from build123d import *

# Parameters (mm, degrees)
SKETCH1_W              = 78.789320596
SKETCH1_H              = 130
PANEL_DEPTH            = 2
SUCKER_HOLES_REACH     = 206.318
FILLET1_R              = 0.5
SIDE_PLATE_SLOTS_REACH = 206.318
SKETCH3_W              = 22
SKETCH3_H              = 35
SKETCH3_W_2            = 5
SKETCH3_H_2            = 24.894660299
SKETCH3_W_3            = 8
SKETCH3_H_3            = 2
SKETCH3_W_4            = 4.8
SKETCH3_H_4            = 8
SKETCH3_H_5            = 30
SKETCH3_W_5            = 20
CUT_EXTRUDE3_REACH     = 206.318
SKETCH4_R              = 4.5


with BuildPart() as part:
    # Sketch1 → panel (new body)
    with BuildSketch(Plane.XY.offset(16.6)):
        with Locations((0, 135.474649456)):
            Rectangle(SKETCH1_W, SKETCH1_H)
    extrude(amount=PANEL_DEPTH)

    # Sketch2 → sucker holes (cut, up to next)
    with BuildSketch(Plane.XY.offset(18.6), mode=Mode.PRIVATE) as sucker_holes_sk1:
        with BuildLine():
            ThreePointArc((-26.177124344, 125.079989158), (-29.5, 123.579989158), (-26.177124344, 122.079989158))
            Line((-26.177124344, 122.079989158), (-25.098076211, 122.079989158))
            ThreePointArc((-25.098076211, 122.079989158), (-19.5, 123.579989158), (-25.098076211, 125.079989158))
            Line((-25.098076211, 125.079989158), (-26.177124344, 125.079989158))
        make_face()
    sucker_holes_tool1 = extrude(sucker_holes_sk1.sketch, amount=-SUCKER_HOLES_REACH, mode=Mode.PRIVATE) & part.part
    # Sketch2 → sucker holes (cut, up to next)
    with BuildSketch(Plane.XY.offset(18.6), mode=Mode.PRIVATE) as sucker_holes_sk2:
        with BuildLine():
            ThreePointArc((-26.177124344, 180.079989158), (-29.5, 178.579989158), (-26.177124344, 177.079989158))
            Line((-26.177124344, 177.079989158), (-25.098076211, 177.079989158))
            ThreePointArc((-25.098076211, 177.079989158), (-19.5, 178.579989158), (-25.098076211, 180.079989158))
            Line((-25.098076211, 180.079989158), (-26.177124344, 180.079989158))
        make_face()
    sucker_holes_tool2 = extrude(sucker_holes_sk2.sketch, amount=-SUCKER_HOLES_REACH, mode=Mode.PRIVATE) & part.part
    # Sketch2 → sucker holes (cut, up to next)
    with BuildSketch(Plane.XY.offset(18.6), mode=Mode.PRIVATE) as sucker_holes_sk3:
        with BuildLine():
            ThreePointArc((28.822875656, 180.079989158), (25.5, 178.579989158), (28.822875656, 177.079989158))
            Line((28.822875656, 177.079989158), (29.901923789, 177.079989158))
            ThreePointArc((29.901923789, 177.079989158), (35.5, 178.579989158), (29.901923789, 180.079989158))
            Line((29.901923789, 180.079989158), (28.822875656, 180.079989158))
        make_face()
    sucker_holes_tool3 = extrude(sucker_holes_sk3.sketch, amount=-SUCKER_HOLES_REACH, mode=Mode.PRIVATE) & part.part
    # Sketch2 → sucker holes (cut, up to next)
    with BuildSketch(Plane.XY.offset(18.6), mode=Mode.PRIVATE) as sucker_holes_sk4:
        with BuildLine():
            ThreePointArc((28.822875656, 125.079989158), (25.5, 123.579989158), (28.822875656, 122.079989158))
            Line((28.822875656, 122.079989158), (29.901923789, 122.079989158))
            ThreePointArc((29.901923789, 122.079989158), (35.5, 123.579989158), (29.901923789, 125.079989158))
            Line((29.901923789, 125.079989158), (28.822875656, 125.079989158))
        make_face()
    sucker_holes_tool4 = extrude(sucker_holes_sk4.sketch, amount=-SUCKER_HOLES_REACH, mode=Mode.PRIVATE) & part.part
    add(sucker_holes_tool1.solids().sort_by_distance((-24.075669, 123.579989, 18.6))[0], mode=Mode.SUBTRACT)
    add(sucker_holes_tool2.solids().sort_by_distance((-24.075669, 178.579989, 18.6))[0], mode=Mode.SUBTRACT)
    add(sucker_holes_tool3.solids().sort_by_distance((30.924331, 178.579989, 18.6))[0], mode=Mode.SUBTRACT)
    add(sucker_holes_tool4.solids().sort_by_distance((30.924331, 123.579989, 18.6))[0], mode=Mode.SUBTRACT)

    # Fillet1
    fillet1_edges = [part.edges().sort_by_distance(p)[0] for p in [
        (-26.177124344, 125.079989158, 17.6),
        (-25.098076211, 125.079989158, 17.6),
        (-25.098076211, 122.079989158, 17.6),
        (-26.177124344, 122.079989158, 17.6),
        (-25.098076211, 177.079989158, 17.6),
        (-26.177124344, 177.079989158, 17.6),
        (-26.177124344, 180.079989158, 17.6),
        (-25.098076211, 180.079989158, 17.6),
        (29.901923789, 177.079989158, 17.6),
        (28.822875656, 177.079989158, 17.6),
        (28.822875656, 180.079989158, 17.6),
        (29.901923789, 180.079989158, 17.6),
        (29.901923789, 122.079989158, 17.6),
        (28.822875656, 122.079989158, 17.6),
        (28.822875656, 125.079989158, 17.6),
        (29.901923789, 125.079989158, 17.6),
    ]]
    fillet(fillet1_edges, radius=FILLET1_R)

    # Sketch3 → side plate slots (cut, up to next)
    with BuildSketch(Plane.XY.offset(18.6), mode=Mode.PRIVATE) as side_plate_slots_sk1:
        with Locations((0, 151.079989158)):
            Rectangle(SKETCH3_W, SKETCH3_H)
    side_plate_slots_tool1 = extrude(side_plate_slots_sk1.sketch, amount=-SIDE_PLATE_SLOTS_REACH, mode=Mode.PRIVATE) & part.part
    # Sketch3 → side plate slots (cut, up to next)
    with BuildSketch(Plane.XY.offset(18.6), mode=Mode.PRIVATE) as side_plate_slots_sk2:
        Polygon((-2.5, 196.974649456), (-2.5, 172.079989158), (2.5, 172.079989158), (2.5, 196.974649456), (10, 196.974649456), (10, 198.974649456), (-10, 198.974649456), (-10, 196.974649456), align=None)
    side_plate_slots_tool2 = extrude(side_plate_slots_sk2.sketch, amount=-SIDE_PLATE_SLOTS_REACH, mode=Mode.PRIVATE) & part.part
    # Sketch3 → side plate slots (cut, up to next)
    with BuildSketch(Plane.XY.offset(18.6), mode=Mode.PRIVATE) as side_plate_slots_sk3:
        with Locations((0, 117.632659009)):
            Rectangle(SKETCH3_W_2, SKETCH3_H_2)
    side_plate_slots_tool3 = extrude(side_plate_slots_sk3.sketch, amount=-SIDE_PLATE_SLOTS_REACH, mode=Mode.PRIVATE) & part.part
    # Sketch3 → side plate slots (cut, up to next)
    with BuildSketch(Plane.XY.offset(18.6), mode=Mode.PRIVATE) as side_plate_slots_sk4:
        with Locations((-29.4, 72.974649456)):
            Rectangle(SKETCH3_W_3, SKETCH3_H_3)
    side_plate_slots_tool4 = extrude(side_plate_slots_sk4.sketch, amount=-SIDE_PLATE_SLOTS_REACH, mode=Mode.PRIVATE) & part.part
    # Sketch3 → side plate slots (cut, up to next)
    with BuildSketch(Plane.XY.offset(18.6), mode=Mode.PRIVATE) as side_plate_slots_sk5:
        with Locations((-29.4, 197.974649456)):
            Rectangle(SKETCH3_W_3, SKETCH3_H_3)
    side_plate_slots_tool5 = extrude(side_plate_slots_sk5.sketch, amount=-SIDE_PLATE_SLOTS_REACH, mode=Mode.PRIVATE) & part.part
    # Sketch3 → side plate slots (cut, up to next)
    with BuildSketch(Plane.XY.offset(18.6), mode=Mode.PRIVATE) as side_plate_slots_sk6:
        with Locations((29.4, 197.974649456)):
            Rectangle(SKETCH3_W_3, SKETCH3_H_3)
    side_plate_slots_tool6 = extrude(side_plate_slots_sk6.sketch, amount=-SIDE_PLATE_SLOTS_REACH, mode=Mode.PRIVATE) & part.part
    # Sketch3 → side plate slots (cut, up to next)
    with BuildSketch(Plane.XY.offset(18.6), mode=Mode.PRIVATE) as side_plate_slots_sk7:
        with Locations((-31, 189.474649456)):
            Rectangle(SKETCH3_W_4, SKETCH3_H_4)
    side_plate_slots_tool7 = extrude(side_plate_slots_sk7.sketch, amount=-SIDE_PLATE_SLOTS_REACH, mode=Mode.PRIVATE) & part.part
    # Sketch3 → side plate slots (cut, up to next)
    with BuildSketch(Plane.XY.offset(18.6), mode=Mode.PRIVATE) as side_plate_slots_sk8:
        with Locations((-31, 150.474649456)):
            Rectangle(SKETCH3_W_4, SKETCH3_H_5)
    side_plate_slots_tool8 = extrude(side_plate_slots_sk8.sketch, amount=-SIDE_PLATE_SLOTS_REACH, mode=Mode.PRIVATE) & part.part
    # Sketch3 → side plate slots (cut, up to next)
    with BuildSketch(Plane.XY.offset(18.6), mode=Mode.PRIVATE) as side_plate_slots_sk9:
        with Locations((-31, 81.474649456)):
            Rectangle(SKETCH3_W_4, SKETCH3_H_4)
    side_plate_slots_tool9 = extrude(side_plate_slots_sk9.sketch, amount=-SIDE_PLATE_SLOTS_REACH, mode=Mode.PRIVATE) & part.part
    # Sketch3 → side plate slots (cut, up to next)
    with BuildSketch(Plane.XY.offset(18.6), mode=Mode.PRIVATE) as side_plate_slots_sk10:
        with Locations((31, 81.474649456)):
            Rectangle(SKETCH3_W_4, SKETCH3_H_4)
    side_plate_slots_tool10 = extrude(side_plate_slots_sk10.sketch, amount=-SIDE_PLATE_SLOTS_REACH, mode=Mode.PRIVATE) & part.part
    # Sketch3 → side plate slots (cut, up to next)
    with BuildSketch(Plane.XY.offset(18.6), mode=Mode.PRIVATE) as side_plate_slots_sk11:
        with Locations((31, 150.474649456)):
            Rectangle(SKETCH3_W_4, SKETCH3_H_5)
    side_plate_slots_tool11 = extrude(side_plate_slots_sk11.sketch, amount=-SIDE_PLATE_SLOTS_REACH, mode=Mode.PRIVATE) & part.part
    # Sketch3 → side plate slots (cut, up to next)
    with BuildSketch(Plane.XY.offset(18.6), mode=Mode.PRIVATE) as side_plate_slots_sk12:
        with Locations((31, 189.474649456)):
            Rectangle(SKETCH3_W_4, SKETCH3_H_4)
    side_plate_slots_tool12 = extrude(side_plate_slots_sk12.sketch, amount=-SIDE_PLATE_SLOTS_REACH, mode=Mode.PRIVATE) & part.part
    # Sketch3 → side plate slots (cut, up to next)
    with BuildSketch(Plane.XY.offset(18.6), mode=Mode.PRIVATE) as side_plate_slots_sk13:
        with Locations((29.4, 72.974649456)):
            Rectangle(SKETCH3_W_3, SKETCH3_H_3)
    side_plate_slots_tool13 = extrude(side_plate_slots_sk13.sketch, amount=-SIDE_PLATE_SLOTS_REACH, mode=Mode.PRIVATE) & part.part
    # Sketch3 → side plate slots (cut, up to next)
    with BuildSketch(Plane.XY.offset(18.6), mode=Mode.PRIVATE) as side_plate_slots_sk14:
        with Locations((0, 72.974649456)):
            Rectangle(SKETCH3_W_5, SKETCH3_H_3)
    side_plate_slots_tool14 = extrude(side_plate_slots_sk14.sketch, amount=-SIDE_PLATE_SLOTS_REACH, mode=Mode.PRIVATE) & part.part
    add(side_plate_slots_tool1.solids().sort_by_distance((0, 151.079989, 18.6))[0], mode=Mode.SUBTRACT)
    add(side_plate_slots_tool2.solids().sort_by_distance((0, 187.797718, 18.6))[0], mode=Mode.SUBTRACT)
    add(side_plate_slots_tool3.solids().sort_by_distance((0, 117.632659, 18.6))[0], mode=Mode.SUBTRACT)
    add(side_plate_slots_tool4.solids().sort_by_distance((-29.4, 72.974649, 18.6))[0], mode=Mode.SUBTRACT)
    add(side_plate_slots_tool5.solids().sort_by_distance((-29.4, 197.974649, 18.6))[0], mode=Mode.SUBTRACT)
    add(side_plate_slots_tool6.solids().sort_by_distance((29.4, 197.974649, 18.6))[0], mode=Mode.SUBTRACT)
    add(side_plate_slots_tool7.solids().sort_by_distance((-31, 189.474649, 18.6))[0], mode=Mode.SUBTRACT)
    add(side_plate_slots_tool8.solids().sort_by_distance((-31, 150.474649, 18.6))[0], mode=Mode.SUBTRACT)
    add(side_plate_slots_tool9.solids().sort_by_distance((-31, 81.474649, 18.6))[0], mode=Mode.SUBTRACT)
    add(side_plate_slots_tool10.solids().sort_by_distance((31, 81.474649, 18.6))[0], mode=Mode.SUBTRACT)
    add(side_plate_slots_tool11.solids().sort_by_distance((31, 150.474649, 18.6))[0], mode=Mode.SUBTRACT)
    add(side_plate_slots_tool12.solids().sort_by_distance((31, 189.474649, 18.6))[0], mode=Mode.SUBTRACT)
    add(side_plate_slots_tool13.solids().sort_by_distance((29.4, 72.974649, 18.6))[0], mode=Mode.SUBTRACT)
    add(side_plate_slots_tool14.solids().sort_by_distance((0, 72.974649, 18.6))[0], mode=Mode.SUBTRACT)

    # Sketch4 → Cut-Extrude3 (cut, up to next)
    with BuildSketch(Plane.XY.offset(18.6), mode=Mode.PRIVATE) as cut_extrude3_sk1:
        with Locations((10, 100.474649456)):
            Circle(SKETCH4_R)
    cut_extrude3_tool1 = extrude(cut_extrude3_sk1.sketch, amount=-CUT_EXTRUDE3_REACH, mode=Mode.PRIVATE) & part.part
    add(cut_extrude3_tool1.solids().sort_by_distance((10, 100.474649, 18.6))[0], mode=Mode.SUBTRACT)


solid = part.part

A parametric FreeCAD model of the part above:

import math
import FreeCAD as App
import Part
import Sketcher


def edges_at(feature, points):
    """Names of the edges that pass closest to the given points."""
    edges = feature.Shape.Edges
    near = lambda p: min(range(len(edges)), key=lambda i: edges[i].distToShape(Part.Vertex(*p))[0])
    return sorted({f"Edge{near(p) + 1}" for p in points})

doc = App.newDocument("Part")
body = doc.addObject("PartDesign::Body", "Body")

# Sketch on XY plane
sketch1 = body.newObject("Sketcher::SketchObject", "Sketch")
sketch1.AttachmentSupport = (doc.getObject("XY_Plane"), [""])
sketch1.MapMode = "FlatFace"
sketch1.AttachmentOffset = App.Placement(App.Vector(0, 0, 16.6), App.Rotation())
sketch1.addGeometry(Part.LineSegment(App.Vector(-39, 200, 0), App.Vector(-39, 70, 0)), False)
sketch1.addGeometry(Part.LineSegment(App.Vector(-39, 70, 0), App.Vector(39, 70, 0)), False)
sketch1.addGeometry(Part.LineSegment(App.Vector(39, 70, 0), App.Vector(39, 200, 0)), False)
sketch1.addGeometry(Part.LineSegment(App.Vector(39, 200, 0), App.Vector(-39, 200, 0)), False)
sketch1.addConstraint(Sketcher.Constraint("Coincident", 0, 2, 1, 1))
sketch1.addConstraint(Sketcher.Constraint("Coincident", 1, 2, 2, 1))
sketch1.addConstraint(Sketcher.Constraint("Coincident", 2, 2, 3, 1))
sketch1.addConstraint(Sketcher.Constraint("Coincident", 3, 2, 0, 1))
sketch1.addConstraint(Sketcher.Constraint("Vertical", 0))
sketch1.addConstraint(Sketcher.Constraint("Horizontal", 1))
sketch1.addConstraint(Sketcher.Constraint("Vertical", 2))
sketch1.addConstraint(Sketcher.Constraint("Horizontal", 3))
sketch1.addConstraint(Sketcher.Constraint("DistanceY", 0, 2, 0, 1, 130.0))
sketch1.addConstraint(Sketcher.Constraint("DistanceX", 1, 1, 1, 2, 78.789321))
sketch1.addConstraint(Sketcher.Constraint("DistanceX", 0, 2, -1, 1, 39.39466))
sketch1.addConstraint(Sketcher.Constraint("DistanceY", -1, 1, 0, 2, 70.474649))
pad1 = body.newObject("PartDesign::Pad", "Pad")
pad1.Profile = sketch1
pad1.Length = 2

# Sketch on XY plane
sketch2 = body.newObject("Sketcher::SketchObject", "Sketch001")
sketch2.AttachmentSupport = (doc.getObject("XY_Plane"), [""])
sketch2.MapMode = "FlatFace"
sketch2.AttachmentOffset = App.Placement(App.Vector(0, 0, 18.6), App.Rotation())
sketch2.addGeometry(Part.ArcOfCircle(Part.Circle(App.Vector(-27.5, 123.6, 0), App.Vector(0, 0, 1), 2), math.radians(49), math.radians(311)), False)
sketch2.addGeometry(Part.LineSegment(App.Vector(-26.2, 122.1, 0), App.Vector(-25.1, 122.1, 0)), False)
sketch2.addGeometry(Part.ArcOfCircle(Part.Circle(App.Vector(-22.5, 123.6, 0), App.Vector(0, 0, 1), 3), math.radians(-150), math.radians(150)), False)
sketch2.addGeometry(Part.LineSegment(App.Vector(-25.1, 125.1, 0), App.Vector(-26.2, 125.1, 0)), False)
sketch2.addConstraint(Sketcher.Constraint("Coincident", 0, 2, 1, 1))
sketch2.addConstraint(Sketcher.Constraint("Coincident", 1, 2, 2, 1))
sketch2.addConstraint(Sketcher.Constraint("Coincident", 2, 2, 3, 1))
sketch2.addConstraint(Sketcher.Constraint("Coincident", 3, 2, 0, 1))
sketch2.addConstraint(Sketcher.Constraint("Horizontal", 1))
sketch2.addConstraint(Sketcher.Constraint("Horizontal", 3))
sketch2.addConstraint(Sketcher.Constraint("Horizontal", 0, 3, 2, 3))
sketch2.addConstraint(Sketcher.Constraint("Vertical", 1, 2, 2, 2))
sketch2.addConstraint(Sketcher.Constraint("Radius", 0, 2.0))
sketch2.addConstraint(Sketcher.Constraint("Radius", 2, 3.0))
sketch2.addConstraint(Sketcher.Constraint("DistanceX", 0, 3, 2, 3, 5.0))
sketch2.addConstraint(Sketcher.Constraint("DistanceY", 1, 2, 2, 2, 3.0))
sketch2.addConstraint(Sketcher.Constraint("DistanceX", 0, 3, -1, 1, 27.5))
sketch2.addConstraint(Sketcher.Constraint("DistanceY", -1, 1, 0, 3, 123.579989))
pocket1 = body.newObject("PartDesign::Pocket", "Pocket")
pocket1.Profile = sketch2
pocket1.Type = "UpToFirst"

# Sketch on XY plane
sketch3 = body.newObject("Sketcher::SketchObject", "Sketch002")
sketch3.AttachmentSupport = (doc.getObject("XY_Plane"), [""])
sketch3.MapMode = "FlatFace"
sketch3.AttachmentOffset = App.Placement(App.Vector(0, 0, 18.6), App.Rotation())
sketch3.addGeometry(Part.ArcOfCircle(Part.Circle(App.Vector(-27.5, 178.6, 0), App.Vector(0, 0, 1), 2), math.radians(49), math.radians(311)), False)
sketch3.addGeometry(Part.LineSegment(App.Vector(-26.2, 177.1, 0), App.Vector(-25.1, 177.1, 0)), False)
sketch3.addGeometry(Part.ArcOfCircle(Part.Circle(App.Vector(-22.5, 178.6, 0), App.Vector(0, 0, 1), 3), math.radians(-150), math.radians(150)), False)
sketch3.addGeometry(Part.LineSegment(App.Vector(-25.1, 180.1, 0), App.Vector(-26.2, 180.1, 0)), False)
sketch3.addConstraint(Sketcher.Constraint("Coincident", 0, 2, 1, 1))
sketch3.addConstraint(Sketcher.Constraint("Coincident", 1, 2, 2, 1))
sketch3.addConstraint(Sketcher.Constraint("Coincident", 2, 2, 3, 1))
sketch3.addConstraint(Sketcher.Constraint("Coincident", 3, 2, 0, 1))
sketch3.addConstraint(Sketcher.Constraint("Horizontal", 1))
sketch3.addConstraint(Sketcher.Constraint("Horizontal", 3))
sketch3.addConstraint(Sketcher.Constraint("Horizontal", 0, 3, 2, 3))
sketch3.addConstraint(Sketcher.Constraint("Vertical", 1, 2, 2, 2))
sketch3.addConstraint(Sketcher.Constraint("Radius", 0, 2.0))
sketch3.addConstraint(Sketcher.Constraint("Radius", 2, 3.0))
sketch3.addConstraint(Sketcher.Constraint("DistanceX", 0, 3, 2, 3, 5.0))
sketch3.addConstraint(Sketcher.Constraint("DistanceY", 1, 2, 2, 2, 3.0))
sketch3.addConstraint(Sketcher.Constraint("DistanceX", 0, 3, -1, 1, 27.5))
sketch3.addConstraint(Sketcher.Constraint("DistanceY", -1, 1, 0, 3, 178.579989))
pocket2 = body.newObject("PartDesign::Pocket", "Pocket001")
pocket2.Profile = sketch3
pocket2.Type = "UpToFirst"

# Sketch on XY plane
sketch4 = body.newObject("Sketcher::SketchObject", "Sketch003")
sketch4.AttachmentSupport = (doc.getObject("XY_Plane"), [""])
sketch4.MapMode = "FlatFace"
sketch4.AttachmentOffset = App.Placement(App.Vector(0, 0, 18.6), App.Rotation())
sketch4.addGeometry(Part.ArcOfCircle(Part.Circle(App.Vector(27.5, 178.6, 0), App.Vector(0, 0, 1), 2), math.radians(49), math.radians(311)), False)
sketch4.addGeometry(Part.LineSegment(App.Vector(28.8, 177.1, 0), App.Vector(29.9, 177.1, 0)), False)
sketch4.addGeometry(Part.ArcOfCircle(Part.Circle(App.Vector(32.5, 178.6, 0), App.Vector(0, 0, 1), 3), math.radians(-150), math.radians(150)), False)
sketch4.addGeometry(Part.LineSegment(App.Vector(29.9, 180.1, 0), App.Vector(28.8, 180.1, 0)), False)
sketch4.addConstraint(Sketcher.Constraint("Coincident", 0, 2, 1, 1))
sketch4.addConstraint(Sketcher.Constraint("Coincident", 1, 2, 2, 1))
sketch4.addConstraint(Sketcher.Constraint("Coincident", 2, 2, 3, 1))
sketch4.addConstraint(Sketcher.Constraint("Coincident", 3, 2, 0, 1))
sketch4.addConstraint(Sketcher.Constraint("Horizontal", 1))
sketch4.addConstraint(Sketcher.Constraint("Horizontal", 3))
sketch4.addConstraint(Sketcher.Constraint("Horizontal", 0, 3, 2, 3))
sketch4.addConstraint(Sketcher.Constraint("Vertical", 1, 2, 2, 2))
sketch4.addConstraint(Sketcher.Constraint("Radius", 0, 2.0))
sketch4.addConstraint(Sketcher.Constraint("Radius", 2, 3.0))
sketch4.addConstraint(Sketcher.Constraint("DistanceX", 0, 3, 2, 3, 5.0))
sketch4.addConstraint(Sketcher.Constraint("DistanceY", 1, 2, 2, 2, 3.0))
sketch4.addConstraint(Sketcher.Constraint("DistanceX", -1, 1, 0, 3, 27.5))
sketch4.addConstraint(Sketcher.Constraint("DistanceY", -1, 1, 0, 3, 178.579989))
pocket3 = body.newObject("PartDesign::Pocket", "Pocket002")
pocket3.Profile = sketch4
pocket3.Type = "UpToFirst"

# Sketch on XY plane
sketch5 = body.newObject("Sketcher::SketchObject", "Sketch004")
sketch5.AttachmentSupport = (doc.getObject("XY_Plane"), [""])
sketch5.MapMode = "FlatFace"
sketch5.AttachmentOffset = App.Placement(App.Vector(0, 0, 18.6), App.Rotation())
sketch5.addGeometry(Part.ArcOfCircle(Part.Circle(App.Vector(27.5, 123.6, 0), App.Vector(0, 0, 1), 2), math.radians(49), math.radians(311)), False)
sketch5.addGeometry(Part.LineSegment(App.Vector(28.8, 122.1, 0), App.Vector(29.9, 122.1, 0)), False)
sketch5.addGeometry(Part.ArcOfCircle(Part.Circle(App.Vector(32.5, 123.6, 0), App.Vector(0, 0, 1), 3), math.radians(-150), math.radians(150)), False)
sketch5.addGeometry(Part.LineSegment(App.Vector(29.9, 125.1, 0), App.Vector(28.8, 125.1, 0)), False)
sketch5.addConstraint(Sketcher.Constraint("Coincident", 0, 2, 1, 1))
sketch5.addConstraint(Sketcher.Constraint("Coincident", 1, 2, 2, 1))
sketch5.addConstraint(Sketcher.Constraint("Coincident", 2, 2, 3, 1))
sketch5.addConstraint(Sketcher.Constraint("Coincident", 3, 2, 0, 1))
sketch5.addConstraint(Sketcher.Constraint("Horizontal", 1))
sketch5.addConstraint(Sketcher.Constraint("Horizontal", 3))
sketch5.addConstraint(Sketcher.Constraint("Horizontal", 0, 3, 2, 3))
sketch5.addConstraint(Sketcher.Constraint("Vertical", 1, 2, 2, 2))
sketch5.addConstraint(Sketcher.Constraint("Radius", 0, 2.0))
sketch5.addConstraint(Sketcher.Constraint("Radius", 2, 3.0))
sketch5.addConstraint(Sketcher.Constraint("DistanceX", 0, 3, 2, 3, 5.0))
sketch5.addConstraint(Sketcher.Constraint("DistanceY", 1, 2, 2, 2, 3.0))
sketch5.addConstraint(Sketcher.Constraint("DistanceX", -1, 1, 0, 3, 27.5))
sketch5.addConstraint(Sketcher.Constraint("DistanceY", -1, 1, 0, 3, 123.579989))
pocket4 = body.newObject("PartDesign::Pocket", "Pocket003")
pocket4.Profile = sketch5
pocket4.Type = "UpToFirst"
doc.recompute()

fillet = body.newObject("PartDesign::Fillet", "Fillet")
fillet.Base = (pocket4, edges_at(pocket4, [
    (-26.177, 125.08, 17.6),
    (-25.098, 125.08, 17.6),
    (-25.098, 122.08, 17.6),
    (-26.177, 122.08, 17.6),
    (-25.098, 177.08, 17.6),
    (-26.177, 177.08, 17.6),
    (-26.177, 180.08, 17.6),
    (-25.098, 180.08, 17.6),
    (29.902, 177.08, 17.6),
    (28.823, 177.08, 17.6),
    (28.823, 180.08, 17.6),
    (29.902, 180.08, 17.6),
    (29.902, 122.08, 17.6),
    (28.823, 122.08, 17.6),
    (28.823, 125.08, 17.6),
    (29.902, 125.08, 17.6),
]))
fillet.Radius = 0.5

# Sketch on XY plane
sketch6 = body.newObject("Sketcher::SketchObject", "Sketch005")
sketch6.AttachmentSupport = (doc.getObject("XY_Plane"), [""])
sketch6.MapMode = "FlatFace"
sketch6.AttachmentOffset = App.Placement(App.Vector(0, 0, 18.6), App.Rotation())
sketch6.addGeometry(Part.LineSegment(App.Vector(-11, 169, 0), App.Vector(-11, 134, 0)), False)
sketch6.addGeometry(Part.LineSegment(App.Vector(-11, 134, 0), App.Vector(11, 134, 0)), False)
sketch6.addGeometry(Part.LineSegment(App.Vector(11, 134, 0), App.Vector(11, 169, 0)), False)
sketch6.addGeometry(Part.LineSegment(App.Vector(11, 169, 0), App.Vector(-11, 169, 0)), False)
sketch6.addConstraint(Sketcher.Constraint("Coincident", 0, 2, 1, 1))
sketch6.addConstraint(Sketcher.Constraint("Coincident", 1, 2, 2, 1))
sketch6.addConstraint(Sketcher.Constraint("Coincident", 2, 2, 3, 1))
sketch6.addConstraint(Sketcher.Constraint("Coincident", 3, 2, 0, 1))
sketch6.addConstraint(Sketcher.Constraint("Vertical", 0))
sketch6.addConstraint(Sketcher.Constraint("Horizontal", 1))
sketch6.addConstraint(Sketcher.Constraint("Vertical", 2))
sketch6.addConstraint(Sketcher.Constraint("Horizontal", 3))
sketch6.addConstraint(Sketcher.Constraint("DistanceX", 1, 1, 1, 2, 22.0))
sketch6.addConstraint(Sketcher.Constraint("DistanceY", 0, 2, 0, 1, 35.0))
sketch6.addConstraint(Sketcher.Constraint("DistanceX", 0, 2, -1, 1, 11.0))
sketch6.addConstraint(Sketcher.Constraint("DistanceY", -1, 1, 0, 2, 133.579989))
pocket5 = body.newObject("PartDesign::Pocket", "Pocket004")
pocket5.Profile = sketch6
pocket5.Type = "UpToFirst"

# Sketch on XY plane
sketch7 = body.newObject("Sketcher::SketchObject", "Sketch006")
sketch7.AttachmentSupport = (doc.getObject("XY_Plane"), [""])
sketch7.MapMode = "FlatFace"
sketch7.AttachmentOffset = App.Placement(App.Vector(0, 0, 18.6), App.Rotation())
sketch7.addGeometry(Part.LineSegment(App.Vector(-2.5, 197, 0), App.Vector(-2.5, 172.1, 0)), False)
sketch7.addGeometry(Part.LineSegment(App.Vector(-2.5, 172.1, 0), App.Vector(2.5, 172.1, 0)), False)
sketch7.addGeometry(Part.LineSegment(App.Vector(2.5, 172.1, 0), App.Vector(2.5, 197, 0)), False)
sketch7.addGeometry(Part.LineSegment(App.Vector(2.5, 197, 0), App.Vector(10, 197, 0)), False)
sketch7.addGeometry(Part.LineSegment(App.Vector(10, 197, 0), App.Vector(10, 199, 0)), False)
sketch7.addGeometry(Part.LineSegment(App.Vector(10, 199, 0), App.Vector(-10, 199, 0)), False)
sketch7.addGeometry(Part.LineSegment(App.Vector(-10, 199, 0), App.Vector(-10, 197, 0)), False)
sketch7.addGeometry(Part.LineSegment(App.Vector(-10, 197, 0), App.Vector(-2.5, 197, 0)), False)
sketch7.addConstraint(Sketcher.Constraint("Coincident", 0, 2, 1, 1))
sketch7.addConstraint(Sketcher.Constraint("Coincident", 1, 2, 2, 1))
sketch7.addConstraint(Sketcher.Constraint("Coincident", 2, 2, 3, 1))
sketch7.addConstraint(Sketcher.Constraint("Coincident", 3, 2, 4, 1))
sketch7.addConstraint(Sketcher.Constraint("Coincident", 4, 2, 5, 1))
sketch7.addConstraint(Sketcher.Constraint("Coincident", 5, 2, 6, 1))
sketch7.addConstraint(Sketcher.Constraint("Coincident", 6, 2, 7, 1))
sketch7.addConstraint(Sketcher.Constraint("Coincident", 7, 2, 0, 1))
sketch7.addConstraint(Sketcher.Constraint("Vertical", 0))
sketch7.addConstraint(Sketcher.Constraint("Horizontal", 1))
sketch7.addConstraint(Sketcher.Constraint("Vertical", 2))
sketch7.addConstraint(Sketcher.Constraint("Horizontal", 3))
sketch7.addConstraint(Sketcher.Constraint("Vertical", 4))
sketch7.addConstraint(Sketcher.Constraint("Horizontal", 5))
sketch7.addConstraint(Sketcher.Constraint("Vertical", 6))
sketch7.addConstraint(Sketcher.Constraint("Horizontal", 7))
sketch7.addConstraint(Sketcher.Constraint("Symmetric", 3, 2, 6, 2, -2))
sketch7.addConstraint(Sketcher.Constraint("Equal", 3, 7))
sketch7.addConstraint(Sketcher.Constraint("DistanceX", 1, 1, 1, 2, 5.0))
sketch7.addConstraint(Sketcher.Constraint("DistanceX", 5, 2, 5, 1, 20.0))
sketch7.addConstraint(Sketcher.Constraint("DistanceY", 4, 1, 4, 2, 2.0))
sketch7.addConstraint(Sketcher.Constraint("DistanceY", 0, 2, 0, 1, 24.89466))
sketch7.addConstraint(Sketcher.Constraint("DistanceY", -1, 1, 0, 2, 172.079989))
pocket6 = body.newObject("PartDesign::Pocket", "Pocket005")
pocket6.Profile = sketch7
pocket6.Type = "UpToFirst"

# Sketch on XY plane
sketch8 = body.newObject("Sketcher::SketchObject", "Sketch007")
sketch8.AttachmentSupport = (doc.getObject("XY_Plane"), [""])
sketch8.MapMode = "FlatFace"
sketch8.AttachmentOffset = App.Placement(App.Vector(0, 0, 18.6), App.Rotation())
sketch8.addGeometry(Part.LineSegment(App.Vector(-2, 130, 0), App.Vector(-2, 105, 0)), False)
sketch8.addGeometry(Part.LineSegment(App.Vector(-2, 105, 0), App.Vector(2, 105, 0)), False)
sketch8.addGeometry(Part.LineSegment(App.Vector(2, 105, 0), App.Vector(2, 130, 0)), False)
sketch8.addGeometry(Part.LineSegment(App.Vector(2, 130, 0), App.Vector(-2, 130, 0)), False)
sketch8.addConstraint(Sketcher.Constraint("Coincident", 0, 2, 1, 1))
sketch8.addConstraint(Sketcher.Constraint("Coincident", 1, 2, 2, 1))
sketch8.addConstraint(Sketcher.Constraint("Coincident", 2, 2, 3, 1))
sketch8.addConstraint(Sketcher.Constraint("Coincident", 3, 2, 0, 1))
sketch8.addConstraint(Sketcher.Constraint("Vertical", 0))
sketch8.addConstraint(Sketcher.Constraint("Horizontal", 1))
sketch8.addConstraint(Sketcher.Constraint("Vertical", 2))
sketch8.addConstraint(Sketcher.Constraint("Horizontal", 3))
sketch8.addConstraint(Sketcher.Constraint("DistanceX", 1, 1, 1, 2, 5.0))
sketch8.addConstraint(Sketcher.Constraint("DistanceX", 0, 2, -1, 1, 2.5))
sketch8.addConstraint(Sketcher.Constraint("DistanceY", 0, 2, 0, 1, 24.89466))
sketch8.addConstraint(Sketcher.Constraint("DistanceY", -1, 1, 0, 2, 105.185329))
pocket7 = body.newObject("PartDesign::Pocket", "Pocket006")
pocket7.Profile = sketch8
pocket7.Type = "UpToFirst"

# Sketch on XY plane
sketch9 = body.newObject("Sketcher::SketchObject", "Sketch008")
sketch9.AttachmentSupport = (doc.getObject("XY_Plane"), [""])
sketch9.MapMode = "FlatFace"
sketch9.AttachmentOffset = App.Placement(App.Vector(0, 0, 18.6), App.Rotation())
sketch9.addGeometry(Part.LineSegment(App.Vector(-33.4, 74, 0), App.Vector(-33.4, 72, 0)), False)
sketch9.addGeometry(Part.LineSegment(App.Vector(-33.4, 72, 0), App.Vector(-25.4, 72, 0)), False)
sketch9.addGeometry(Part.LineSegment(App.Vector(-25.4, 72, 0), App.Vector(-25.4, 74, 0)), False)
sketch9.addGeometry(Part.LineSegment(App.Vector(-25.4, 74, 0), App.Vector(-33.4, 74, 0)), False)
sketch9.addConstraint(Sketcher.Constraint("Coincident", 0, 2, 1, 1))
sketch9.addConstraint(Sketcher.Constraint("Coincident", 1, 2, 2, 1))
sketch9.addConstraint(Sketcher.Constraint("Coincident", 2, 2, 3, 1))
sketch9.addConstraint(Sketcher.Constraint("Coincident", 3, 2, 0, 1))
sketch9.addConstraint(Sketcher.Constraint("Vertical", 0))
sketch9.addConstraint(Sketcher.Constraint("Horizontal", 1))
sketch9.addConstraint(Sketcher.Constraint("Vertical", 2))
sketch9.addConstraint(Sketcher.Constraint("Horizontal", 3))
sketch9.addConstraint(Sketcher.Constraint("DistanceX", 1, 1, 1, 2, 8.0))
sketch9.addConstraint(Sketcher.Constraint("DistanceY", 0, 2, 0, 1, 2.0))
sketch9.addConstraint(Sketcher.Constraint("DistanceX", 0, 2, -1, 1, 33.4))
sketch9.addConstraint(Sketcher.Constraint("DistanceY", -1, 1, 0, 2, 71.974649))
pocket8 = body.newObject("PartDesign::Pocket", "Pocket007")
pocket8.Profile = sketch9
pocket8.Type = "UpToFirst"

# Sketch on XY plane
sketch10 = body.newObject("Sketcher::SketchObject", "Sketch009")
sketch10.AttachmentSupport = (doc.getObject("XY_Plane"), [""])
sketch10.MapMode = "FlatFace"
sketch10.AttachmentOffset = App.Placement(App.Vector(0, 0, 18.6), App.Rotation())
sketch10.addGeometry(Part.LineSegment(App.Vector(-33.4, 199, 0), App.Vector(-33.4, 197, 0)), False)
sketch10.addGeometry(Part.LineSegment(App.Vector(-33.4, 197, 0), App.Vector(-25.4, 197, 0)), False)
sketch10.addGeometry(Part.LineSegment(App.Vector(-25.4, 197, 0), App.Vector(-25.4, 199, 0)), False)
sketch10.addGeometry(Part.LineSegment(App.Vector(-25.4, 199, 0), App.Vector(-33.4, 199, 0)), False)
sketch10.addConstraint(Sketcher.Constraint("Coincident", 0, 2, 1, 1))
sketch10.addConstraint(Sketcher.Constraint("Coincident", 1, 2, 2, 1))
sketch10.addConstraint(Sketcher.Constraint("Coincident", 2, 2, 3, 1))
sketch10.addConstraint(Sketcher.Constraint("Coincident", 3, 2, 0, 1))
sketch10.addConstraint(Sketcher.Constraint("Vertical", 0))
sketch10.addConstraint(Sketcher.Constraint("Horizontal", 1))
sketch10.addConstraint(Sketcher.Constraint("Vertical", 2))
sketch10.addConstraint(Sketcher.Constraint("Horizontal", 3))
sketch10.addConstraint(Sketcher.Constraint("DistanceX", 1, 1, 1, 2, 8.0))
sketch10.addConstraint(Sketcher.Constraint("DistanceY", 0, 2, 0, 1, 2.0))
sketch10.addConstraint(Sketcher.Constraint("DistanceX", 0, 2, -1, 1, 33.4))
sketch10.addConstraint(Sketcher.Constraint("DistanceY", -1, 1, 0, 2, 196.974649))
pocket9 = body.newObject("PartDesign::Pocket", "Pocket008")
pocket9.Profile = sketch10
pocket9.Type = "UpToFirst"

# Sketch on XY plane
sketch11 = body.newObject("Sketcher::SketchObject", "Sketch010")
sketch11.AttachmentSupport = (doc.getObject("XY_Plane"), [""])
sketch11.MapMode = "FlatFace"
sketch11.AttachmentOffset = App.Placement(App.Vector(0, 0, 18.6), App.Rotation())
sketch11.addGeometry(Part.LineSegment(App.Vector(25.4, 199, 0), App.Vector(25.4, 197, 0)), False)
sketch11.addGeometry(Part.LineSegment(App.Vector(25.4, 197, 0), App.Vector(33.4, 197, 0)), False)
sketch11.addGeometry(Part.LineSegment(App.Vector(33.4, 197, 0), App.Vector(33.4, 199, 0)), False)
sketch11.addGeometry(Part.LineSegment(App.Vector(33.4, 199, 0), App.Vector(25.4, 199, 0)), False)
sketch11.addConstraint(Sketcher.Constraint("Coincident", 0, 2, 1, 1))
sketch11.addConstraint(Sketcher.Constraint("Coincident", 1, 2, 2, 1))
sketch11.addConstraint(Sketcher.Constraint("Coincident", 2, 2, 3, 1))
sketch11.addConstraint(Sketcher.Constraint("Coincident", 3, 2, 0, 1))
sketch11.addConstraint(Sketcher.Constraint("Vertical", 0))
sketch11.addConstraint(Sketcher.Constraint("Horizontal", 1))
sketch11.addConstraint(Sketcher.Constraint("Vertical", 2))
sketch11.addConstraint(Sketcher.Constraint("Horizontal", 3))
sketch11.addConstraint(Sketcher.Constraint("DistanceX", 1, 1, 1, 2, 8.0))
sketch11.addConstraint(Sketcher.Constraint("DistanceY", 0, 2, 0, 1, 2.0))
sketch11.addConstraint(Sketcher.Constraint("DistanceX", -1, 1, 0, 2, 25.4))
sketch11.addConstraint(Sketcher.Constraint("DistanceY", -1, 1, 0, 2, 196.974649))
pocket10 = body.newObject("PartDesign::Pocket", "Pocket009")
pocket10.Profile = sketch11
pocket10.Type = "UpToFirst"

# Sketch on XY plane
sketch12 = body.newObject("Sketcher::SketchObject", "Sketch011")
sketch12.AttachmentSupport = (doc.getObject("XY_Plane"), [""])
sketch12.MapMode = "FlatFace"
sketch12.AttachmentOffset = App.Placement(App.Vector(0, 0, 18.6), App.Rotation())
sketch12.addGeometry(Part.LineSegment(App.Vector(-33.4, 193.5, 0), App.Vector(-33.4, 185.5, 0)), False)
sketch12.addGeometry(Part.LineSegment(App.Vector(-33.4, 185.5, 0), App.Vector(-28.6, 185.5, 0)), False)
sketch12.addGeometry(Part.LineSegment(App.Vector(-28.6, 185.5, 0), App.Vector(-28.6, 193.5, 0)), False)
sketch12.addGeometry(Part.LineSegment(App.Vector(-28.6, 193.5, 0), App.Vector(-33.4, 193.5, 0)), False)
sketch12.addConstraint(Sketcher.Constraint("Coincident", 0, 2, 1, 1))
sketch12.addConstraint(Sketcher.Constraint("Coincident", 1, 2, 2, 1))
sketch12.addConstraint(Sketcher.Constraint("Coincident", 2, 2, 3, 1))
sketch12.addConstraint(Sketcher.Constraint("Coincident", 3, 2, 0, 1))
sketch12.addConstraint(Sketcher.Constraint("Vertical", 0))
sketch12.addConstraint(Sketcher.Constraint("Horizontal", 1))
sketch12.addConstraint(Sketcher.Constraint("Vertical", 2))
sketch12.addConstraint(Sketcher.Constraint("Horizontal", 3))
sketch12.addConstraint(Sketcher.Constraint("DistanceY", 0, 2, 0, 1, 8.0))
sketch12.addConstraint(Sketcher.Constraint("DistanceX", 1, 1, 1, 2, 4.8))
sketch12.addConstraint(Sketcher.Constraint("DistanceX", 0, 2, -1, 1, 33.4))
sketch12.addConstraint(Sketcher.Constraint("DistanceY", -1, 1, 0, 2, 185.474649))
pocket11 = body.newObject("PartDesign::Pocket", "Pocket010")
pocket11.Profile = sketch12
pocket11.Type = "UpToFirst"

# Sketch on XY plane
sketch13 = body.newObject("Sketcher::SketchObject", "Sketch012")
sketch13.AttachmentSupport = (doc.getObject("XY_Plane"), [""])
sketch13.MapMode = "FlatFace"
sketch13.AttachmentOffset = App.Placement(App.Vector(0, 0, 18.6), App.Rotation())
sketch13.addGeometry(Part.LineSegment(App.Vector(-33.4, 165.5, 0), App.Vector(-33.4, 135.5, 0)), False)
sketch13.addGeometry(Part.LineSegment(App.Vector(-33.4, 135.5, 0), App.Vector(-28.6, 135.5, 0)), False)
sketch13.addGeometry(Part.LineSegment(App.Vector(-28.6, 135.5, 0), App.Vector(-28.6, 165.5, 0)), False)
sketch13.addGeometry(Part.LineSegment(App.Vector(-28.6, 165.5, 0), App.Vector(-33.4, 165.5, 0)), False)
sketch13.addConstraint(Sketcher.Constraint("Coincident", 0, 2, 1, 1))
sketch13.addConstraint(Sketcher.Constraint("Coincident", 1, 2, 2, 1))
sketch13.addConstraint(Sketcher.Constraint("Coincident", 2, 2, 3, 1))
sketch13.addConstraint(Sketcher.Constraint("Coincident", 3, 2, 0, 1))
sketch13.addConstraint(Sketcher.Constraint("Vertical", 0))
sketch13.addConstraint(Sketcher.Constraint("Horizontal", 1))
sketch13.addConstraint(Sketcher.Constraint("Vertical", 2))
sketch13.addConstraint(Sketcher.Constraint("Horizontal", 3))
sketch13.addConstraint(Sketcher.Constraint("DistanceY", 0, 2, 0, 1, 30.0))
sketch13.addConstraint(Sketcher.Constraint("DistanceX", 1, 1, 1, 2, 4.8))
sketch13.addConstraint(Sketcher.Constraint("DistanceX", 0, 2, -1, 1, 33.4))
sketch13.addConstraint(Sketcher.Constraint("DistanceY", -1, 1, 0, 2, 135.474649))
pocket12 = body.newObject("PartDesign::Pocket", "Pocket011")
pocket12.Profile = sketch13
pocket12.Type = "UpToFirst"

# Sketch on XY plane
sketch14 = body.newObject("Sketcher::SketchObject", "Sketch013")
sketch14.AttachmentSupport = (doc.getObject("XY_Plane"), [""])
sketch14.MapMode = "FlatFace"
sketch14.AttachmentOffset = App.Placement(App.Vector(0, 0, 18.6), App.Rotation())
sketch14.addGeometry(Part.LineSegment(App.Vector(-33.4, 85.5, 0), App.Vector(-33.4, 77.5, 0)), False)
sketch14.addGeometry(Part.LineSegment(App.Vector(-33.4, 77.5, 0), App.Vector(-28.6, 77.5, 0)), False)
sketch14.addGeometry(Part.LineSegment(App.Vector(-28.6, 77.5, 0), App.Vector(-28.6, 85.5, 0)), False)
sketch14.addGeometry(Part.LineSegment(App.Vector(-28.6, 85.5, 0), App.Vector(-33.4, 85.5, 0)), False)
sketch14.addConstraint(Sketcher.Constraint("Coincident", 0, 2, 1, 1))
sketch14.addConstraint(Sketcher.Constraint("Coincident", 1, 2, 2, 1))
sketch14.addConstraint(Sketcher.Constraint("Coincident", 2, 2, 3, 1))
sketch14.addConstraint(Sketcher.Constraint("Coincident", 3, 2, 0, 1))
sketch14.addConstraint(Sketcher.Constraint("Vertical", 0))
sketch14.addConstraint(Sketcher.Constraint("Horizontal", 1))
sketch14.addConstraint(Sketcher.Constraint("Vertical", 2))
sketch14.addConstraint(Sketcher.Constraint("Horizontal", 3))
sketch14.addConstraint(Sketcher.Constraint("DistanceY", 0, 2, 0, 1, 8.0))
sketch14.addConstraint(Sketcher.Constraint("DistanceX", 1, 1, 1, 2, 4.8))
sketch14.addConstraint(Sketcher.Constraint("DistanceX", 0, 2, -1, 1, 33.4))
sketch14.addConstraint(Sketcher.Constraint("DistanceY", -1, 1, 0, 2, 77.474649))
pocket13 = body.newObject("PartDesign::Pocket", "Pocket012")
pocket13.Profile = sketch14
pocket13.Type = "UpToFirst"

# Sketch on XY plane
sketch15 = body.newObject("Sketcher::SketchObject", "Sketch014")
sketch15.AttachmentSupport = (doc.getObject("XY_Plane"), [""])
sketch15.MapMode = "FlatFace"
sketch15.AttachmentOffset = App.Placement(App.Vector(0, 0, 18.6), App.Rotation())
sketch15.addGeometry(Part.LineSegment(App.Vector(28.6, 85.5, 0), App.Vector(28.6, 77.5, 0)), False)
sketch15.addGeometry(Part.LineSegment(App.Vector(28.6, 77.5, 0), App.Vector(33.4, 77.5, 0)), False)
sketch15.addGeometry(Part.LineSegment(App.Vector(33.4, 77.5, 0), App.Vector(33.4, 85.5, 0)), False)
sketch15.addGeometry(Part.LineSegment(App.Vector(33.4, 85.5, 0), App.Vector(28.6, 85.5, 0)), False)
sketch15.addConstraint(Sketcher.Constraint("Coincident", 0, 2, 1, 1))
sketch15.addConstraint(Sketcher.Constraint("Coincident", 1, 2, 2, 1))
sketch15.addConstraint(Sketcher.Constraint("Coincident", 2, 2, 3, 1))
sketch15.addConstraint(Sketcher.Constraint("Coincident", 3, 2, 0, 1))
sketch15.addConstraint(Sketcher.Constraint("Vertical", 0))
sketch15.addConstraint(Sketcher.Constraint("Horizontal", 1))
sketch15.addConstraint(Sketcher.Constraint("Vertical", 2))
sketch15.addConstraint(Sketcher.Constraint("Horizontal", 3))
sketch15.addConstraint(Sketcher.Constraint("DistanceY", 0, 2, 0, 1, 8.0))
sketch15.addConstraint(Sketcher.Constraint("DistanceX", 1, 1, 1, 2, 4.8))
sketch15.addConstraint(Sketcher.Constraint("DistanceX", -1, 1, 0, 2, 28.6))
sketch15.addConstraint(Sketcher.Constraint("DistanceY", -1, 1, 0, 2, 77.474649))
pocket14 = body.newObject("PartDesign::Pocket", "Pocket013")
pocket14.Profile = sketch15
pocket14.Type = "UpToFirst"

# Sketch on XY plane
sketch16 = body.newObject("Sketcher::SketchObject", "Sketch015")
sketch16.AttachmentSupport = (doc.getObject("XY_Plane"), [""])
sketch16.MapMode = "FlatFace"
sketch16.AttachmentOffset = App.Placement(App.Vector(0, 0, 18.6), App.Rotation())
sketch16.addGeometry(Part.LineSegment(App.Vector(28.6, 165.5, 0), App.Vector(28.6, 135.5, 0)), False)
sketch16.addGeometry(Part.LineSegment(App.Vector(28.6, 135.5, 0), App.Vector(33.4, 135.5, 0)), False)
sketch16.addGeometry(Part.LineSegment(App.Vector(33.4, 135.5, 0), App.Vector(33.4, 165.5, 0)), False)
sketch16.addGeometry(Part.LineSegment(App.Vector(33.4, 165.5, 0), App.Vector(28.6, 165.5, 0)), False)
sketch16.addConstraint(Sketcher.Constraint("Coincident", 0, 2, 1, 1))
sketch16.addConstraint(Sketcher.Constraint("Coincident", 1, 2, 2, 1))
sketch16.addConstraint(Sketcher.Constraint("Coincident", 2, 2, 3, 1))
sketch16.addConstraint(Sketcher.Constraint("Coincident", 3, 2, 0, 1))
sketch16.addConstraint(Sketcher.Constraint("Vertical", 0))
sketch16.addConstraint(Sketcher.Constraint("Horizontal", 1))
sketch16.addConstraint(Sketcher.Constraint("Vertical", 2))
sketch16.addConstraint(Sketcher.Constraint("Horizontal", 3))
sketch16.addConstraint(Sketcher.Constraint("DistanceY", 0, 2, 0, 1, 30.0))
sketch16.addConstraint(Sketcher.Constraint("DistanceX", 1, 1, 1, 2, 4.8))
sketch16.addConstraint(Sketcher.Constraint("DistanceX", -1, 1, 0, 2, 28.6))
sketch16.addConstraint(Sketcher.Constraint("DistanceY", -1, 1, 0, 2, 135.474649))
pocket15 = body.newObject("PartDesign::Pocket", "Pocket014")
pocket15.Profile = sketch16
pocket15.Type = "UpToFirst"

# Sketch on XY plane
sketch17 = body.newObject("Sketcher::SketchObject", "Sketch016")
sketch17.AttachmentSupport = (doc.getObject("XY_Plane"), [""])
sketch17.MapMode = "FlatFace"
sketch17.AttachmentOffset = App.Placement(App.Vector(0, 0, 18.6), App.Rotation())
sketch17.addGeometry(Part.LineSegment(App.Vector(28.6, 193.5, 0), App.Vector(28.6, 185.5, 0)), False)
sketch17.addGeometry(Part.LineSegment(App.Vector(28.6, 185.5, 0), App.Vector(33.4, 185.5, 0)), False)
sketch17.addGeometry(Part.LineSegment(App.Vector(33.4, 185.5, 0), App.Vector(33.4, 193.5, 0)), False)
sketch17.addGeometry(Part.LineSegment(App.Vector(33.4, 193.5, 0), App.Vector(28.6, 193.5, 0)), False)
sketch17.addConstraint(Sketcher.Constraint("Coincident", 0, 2, 1, 1))
sketch17.addConstraint(Sketcher.Constraint("Coincident", 1, 2, 2, 1))
sketch17.addConstraint(Sketcher.Constraint("Coincident", 2, 2, 3, 1))
sketch17.addConstraint(Sketcher.Constraint("Coincident", 3, 2, 0, 1))
sketch17.addConstraint(Sketcher.Constraint("Vertical", 0))
sketch17.addConstraint(Sketcher.Constraint("Horizontal", 1))
sketch17.addConstraint(Sketcher.Constraint("Vertical", 2))
sketch17.addConstraint(Sketcher.Constraint("Horizontal", 3))
sketch17.addConstraint(Sketcher.Constraint("DistanceY", 0, 2, 0, 1, 8.0))
sketch17.addConstraint(Sketcher.Constraint("DistanceX", 1, 1, 1, 2, 4.8))
sketch17.addConstraint(Sketcher.Constraint("DistanceX", -1, 1, 0, 2, 28.6))
sketch17.addConstraint(Sketcher.Constraint("DistanceY", -1, 1, 0, 2, 185.474649))
pocket16 = body.newObject("PartDesign::Pocket", "Pocket015")
pocket16.Profile = sketch17
pocket16.Type = "UpToFirst"

# Sketch on XY plane
sketch18 = body.newObject("Sketcher::SketchObject", "Sketch017")
sketch18.AttachmentSupport = (doc.getObject("XY_Plane"), [""])
sketch18.MapMode = "FlatFace"
sketch18.AttachmentOffset = App.Placement(App.Vector(0, 0, 18.6), App.Rotation())
sketch18.addGeometry(Part.LineSegment(App.Vector(25.4, 74, 0), App.Vector(25.4, 72, 0)), False)
sketch18.addGeometry(Part.LineSegment(App.Vector(25.4, 72, 0), App.Vector(33.4, 72, 0)), False)
sketch18.addGeometry(Part.LineSegment(App.Vector(33.4, 72, 0), App.Vector(33.4, 74, 0)), False)
sketch18.addGeometry(Part.LineSegment(App.Vector(33.4, 74, 0), App.Vector(25.4, 74, 0)), False)
sketch18.addConstraint(Sketcher.Constraint("Coincident", 0, 2, 1, 1))
sketch18.addConstraint(Sketcher.Constraint("Coincident", 1, 2, 2, 1))
sketch18.addConstraint(Sketcher.Constraint("Coincident", 2, 2, 3, 1))
sketch18.addConstraint(Sketcher.Constraint("Coincident", 3, 2, 0, 1))
sketch18.addConstraint(Sketcher.Constraint("Vertical", 0))
sketch18.addConstraint(Sketcher.Constraint("Horizontal", 1))
sketch18.addConstraint(Sketcher.Constraint("Vertical", 2))
sketch18.addConstraint(Sketcher.Constraint("Horizontal", 3))
sketch18.addConstraint(Sketcher.Constraint("DistanceX", 1, 1, 1, 2, 8.0))
sketch18.addConstraint(Sketcher.Constraint("DistanceY", 0, 2, 0, 1, 2.0))
sketch18.addConstraint(Sketcher.Constraint("DistanceX", -1, 1, 0, 2, 25.4))
sketch18.addConstraint(Sketcher.Constraint("DistanceY", -1, 1, 0, 2, 71.974649))
pocket17 = body.newObject("PartDesign::Pocket", "Pocket016")
pocket17.Profile = sketch18
pocket17.Type = "UpToFirst"

# Sketch on XY plane
sketch19 = body.newObject("Sketcher::SketchObject", "Sketch018")
sketch19.AttachmentSupport = (doc.getObject("XY_Plane"), [""])
sketch19.MapMode = "FlatFace"
sketch19.AttachmentOffset = App.Placement(App.Vector(0, 0, 18.6), App.Rotation())
sketch19.addGeometry(Part.LineSegment(App.Vector(-10, 74, 0), App.Vector(-10, 72, 0)), False)
sketch19.addGeometry(Part.LineSegment(App.Vector(-10, 72, 0), App.Vector(10, 72, 0)), False)
sketch19.addGeometry(Part.LineSegment(App.Vector(10, 72, 0), App.Vector(10, 74, 0)), False)
sketch19.addGeometry(Part.LineSegment(App.Vector(10, 74, 0), App.Vector(-10, 74, 0)), False)
sketch19.addConstraint(Sketcher.Constraint("Coincident", 0, 2, 1, 1))
sketch19.addConstraint(Sketcher.Constraint("Coincident", 1, 2, 2, 1))
sketch19.addConstraint(Sketcher.Constraint("Coincident", 2, 2, 3, 1))
sketch19.addConstraint(Sketcher.Constraint("Coincident", 3, 2, 0, 1))
sketch19.addConstraint(Sketcher.Constraint("Vertical", 0))
sketch19.addConstraint(Sketcher.Constraint("Horizontal", 1))
sketch19.addConstraint(Sketcher.Constraint("Vertical", 2))
sketch19.addConstraint(Sketcher.Constraint("Horizontal", 3))
sketch19.addConstraint(Sketcher.Constraint("DistanceX", 1, 1, 1, 2, 20.0))
sketch19.addConstraint(Sketcher.Constraint("DistanceY", 0, 2, 0, 1, 2.0))
sketch19.addConstraint(Sketcher.Constraint("DistanceX", 0, 2, -1, 1, 10.0))
sketch19.addConstraint(Sketcher.Constraint("DistanceY", -1, 1, 0, 2, 71.974649))
pocket18 = body.newObject("PartDesign::Pocket", "Pocket017")
pocket18.Profile = sketch19
pocket18.Type = "UpToFirst"

# Sketch on XY plane
sketch20 = body.newObject("Sketcher::SketchObject", "Sketch019")
sketch20.AttachmentSupport = (doc.getObject("XY_Plane"), [""])
sketch20.MapMode = "FlatFace"
sketch20.AttachmentOffset = App.Placement(App.Vector(0, 0, 18.6), App.Rotation())
sketch20.addGeometry(Part.Circle(App.Vector(10, 100.5, 0), App.Vector(0, 0, 1), 4.5), False)
sketch20.addConstraint(Sketcher.Constraint("Diameter", 0, 9.0))
sketch20.addConstraint(Sketcher.Constraint("DistanceX", -1, 1, 0, 3, 10.0))
sketch20.addConstraint(Sketcher.Constraint("DistanceY", -1, 1, 0, 3, 100.474649))
pocket19 = body.newObject("PartDesign::Pocket", "Pocket018")
pocket19.Profile = sketch20
pocket19.Type = "UpToFirst"

doc.recompute()
